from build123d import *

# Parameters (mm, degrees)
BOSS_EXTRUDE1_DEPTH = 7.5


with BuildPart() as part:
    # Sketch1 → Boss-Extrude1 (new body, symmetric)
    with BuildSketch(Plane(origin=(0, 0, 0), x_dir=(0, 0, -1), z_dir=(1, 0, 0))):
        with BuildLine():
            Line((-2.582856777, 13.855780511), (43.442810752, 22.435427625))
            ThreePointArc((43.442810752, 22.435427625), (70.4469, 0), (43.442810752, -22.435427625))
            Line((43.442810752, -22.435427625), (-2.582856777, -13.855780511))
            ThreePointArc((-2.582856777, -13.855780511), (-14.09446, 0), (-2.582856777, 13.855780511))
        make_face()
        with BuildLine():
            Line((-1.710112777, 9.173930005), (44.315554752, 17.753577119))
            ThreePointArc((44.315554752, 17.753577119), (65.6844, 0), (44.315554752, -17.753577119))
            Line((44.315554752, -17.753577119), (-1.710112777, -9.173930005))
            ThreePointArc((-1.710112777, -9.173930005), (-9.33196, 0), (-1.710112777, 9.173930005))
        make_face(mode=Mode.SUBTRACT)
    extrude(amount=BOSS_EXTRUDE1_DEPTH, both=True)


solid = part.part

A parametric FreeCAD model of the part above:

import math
import FreeCAD as App
import Part
import Sketcher
from FreeCAD import Vector
Q = App.Units.Quantity

doc = App.newDocument("Part")
params = doc.addObject("Spreadsheet::Sheet", "Params")
for row, (alias, value) in enumerate([
    ("sketch1_radius", "0.711 in"),
    ("pad1_length", "15 mm"),
], start=1):
    params.set(f"A{row}", alias)
    params.set(f"B{row}", "=" + value)
    params.setAlias(f"B{row}", alias)

body = doc.addObject("PartDesign::Body", "Body")

# Sketch on YZ plane
sketch1 = body.newObject("Sketcher::SketchObject", "Sketch")
sketch1.AttachmentSupport = (doc.getObject("YZ_Plane"), [""])
sketch1.MapMode = "FlatFace"
sketch1.addGeometry(Part.LineSegment(Vector(22, -43, 0), Vector(14, 3, 0)), False)
sketch1.addGeometry(Part.ArcOfCircle(Part.Circle(Vector(0, 0, 0), Vector(0, 0, 1), 14), math.radians(11), math.radians(169)), False)
sketch1.addGeometry(Part.LineSegment(Vector(-14, 3, 0), Vector(-22, -43, 0)), False)
sketch1.addGeometry(Part.ArcOfCircle(Part.Circle(Vector(0, -48, 0), Vector(0, 0, 1), 23), math.radians(169), math.radians(371)), False)
sketch1.addGeometry(Part.LineSegment(Vector(9, 2, 0), Vector(18, -44, 0)), False)
sketch1.addGeometry(Part.ArcOfCircle(Part.Circle(Vector(0, -48, 0), Vector(0, 0, 1), 18), math.radians(169), math.radians(371)), False)
sketch1.addGeometry(Part.LineSegment(Vector(-18, -44, 0), Vector(-9, 2, 0)), False)
sketch1.addGeometry(Part.ArcOfCircle(Part.Circle(Vector(0, 0, 0), Vector(0, 0, 1), 9), math.radians(11), math.radians(169)), False)
sketch1.addConstraint(Sketcher.Constraint("Tangent", 0, 2, 1, 1))
sketch1.addConstraint(Sketcher.Constraint("Tangent", 1, 2, 2, 1))
sketch1.addConstraint(Sketcher.Constraint("Tangent", 2, 2, 3, 1))
sketch1.addConstraint(Sketcher.Constraint("Tangent", 3, 2, 0, 1))
sketch1.addConstraint(Sketcher.Constraint("Tangent", 4, 2, 5, 2))
sketch1.addConstraint(Sketcher.Constraint("Tangent", 5, 1, 6, 1))
sketch1.addConstraint(Sketcher.Constraint("Tangent", 6, 2, 7, 2))
sketch1.addConstraint(Sketcher.Constraint("Tangent", 7, 1, 4, 1))
sketch1.addConstraint(Sketcher.Constraint("Coincident", 1, 3, -1, 1))
sketch1.addConstraint(Sketcher.Constraint("Coincident", 7, 3, -1, 1))
sketch1.addConstraint(Sketcher.Constraint("Coincident", 5, 3, 3, 3))
sketch1.addConstraint(Sketcher.Constraint("PointOnObject", 3, 3, -2))
sketch1.addConstraint(Sketcher.Constraint("Parallel", 0, 4))
sketch1.addConstraint(Sketcher.Constraint("Radius", 5, Q("0.711 in")))
sketch1.addConstraint(Sketcher.Constraint("Radius", 1, Q("0.5549 in")))
sketch1.addConstraint(Sketcher.Constraint("Radius", 3, Q("0.8985 in")))
sketch1.addConstraint(Sketcher.Constraint("DistanceY", 3, 3, -1, 1, Q("1.875 in")))
sketch1.setExpression("Constraints[13]", "Params.sketch1_radius")
pad1 = body.newObject("PartDesign::Pad", "Pad")
pad1.Profile = sketch1
pad1.setExpression("Length", "Params.pad1_length")
pad1.Midplane = True

doc.recompute()
